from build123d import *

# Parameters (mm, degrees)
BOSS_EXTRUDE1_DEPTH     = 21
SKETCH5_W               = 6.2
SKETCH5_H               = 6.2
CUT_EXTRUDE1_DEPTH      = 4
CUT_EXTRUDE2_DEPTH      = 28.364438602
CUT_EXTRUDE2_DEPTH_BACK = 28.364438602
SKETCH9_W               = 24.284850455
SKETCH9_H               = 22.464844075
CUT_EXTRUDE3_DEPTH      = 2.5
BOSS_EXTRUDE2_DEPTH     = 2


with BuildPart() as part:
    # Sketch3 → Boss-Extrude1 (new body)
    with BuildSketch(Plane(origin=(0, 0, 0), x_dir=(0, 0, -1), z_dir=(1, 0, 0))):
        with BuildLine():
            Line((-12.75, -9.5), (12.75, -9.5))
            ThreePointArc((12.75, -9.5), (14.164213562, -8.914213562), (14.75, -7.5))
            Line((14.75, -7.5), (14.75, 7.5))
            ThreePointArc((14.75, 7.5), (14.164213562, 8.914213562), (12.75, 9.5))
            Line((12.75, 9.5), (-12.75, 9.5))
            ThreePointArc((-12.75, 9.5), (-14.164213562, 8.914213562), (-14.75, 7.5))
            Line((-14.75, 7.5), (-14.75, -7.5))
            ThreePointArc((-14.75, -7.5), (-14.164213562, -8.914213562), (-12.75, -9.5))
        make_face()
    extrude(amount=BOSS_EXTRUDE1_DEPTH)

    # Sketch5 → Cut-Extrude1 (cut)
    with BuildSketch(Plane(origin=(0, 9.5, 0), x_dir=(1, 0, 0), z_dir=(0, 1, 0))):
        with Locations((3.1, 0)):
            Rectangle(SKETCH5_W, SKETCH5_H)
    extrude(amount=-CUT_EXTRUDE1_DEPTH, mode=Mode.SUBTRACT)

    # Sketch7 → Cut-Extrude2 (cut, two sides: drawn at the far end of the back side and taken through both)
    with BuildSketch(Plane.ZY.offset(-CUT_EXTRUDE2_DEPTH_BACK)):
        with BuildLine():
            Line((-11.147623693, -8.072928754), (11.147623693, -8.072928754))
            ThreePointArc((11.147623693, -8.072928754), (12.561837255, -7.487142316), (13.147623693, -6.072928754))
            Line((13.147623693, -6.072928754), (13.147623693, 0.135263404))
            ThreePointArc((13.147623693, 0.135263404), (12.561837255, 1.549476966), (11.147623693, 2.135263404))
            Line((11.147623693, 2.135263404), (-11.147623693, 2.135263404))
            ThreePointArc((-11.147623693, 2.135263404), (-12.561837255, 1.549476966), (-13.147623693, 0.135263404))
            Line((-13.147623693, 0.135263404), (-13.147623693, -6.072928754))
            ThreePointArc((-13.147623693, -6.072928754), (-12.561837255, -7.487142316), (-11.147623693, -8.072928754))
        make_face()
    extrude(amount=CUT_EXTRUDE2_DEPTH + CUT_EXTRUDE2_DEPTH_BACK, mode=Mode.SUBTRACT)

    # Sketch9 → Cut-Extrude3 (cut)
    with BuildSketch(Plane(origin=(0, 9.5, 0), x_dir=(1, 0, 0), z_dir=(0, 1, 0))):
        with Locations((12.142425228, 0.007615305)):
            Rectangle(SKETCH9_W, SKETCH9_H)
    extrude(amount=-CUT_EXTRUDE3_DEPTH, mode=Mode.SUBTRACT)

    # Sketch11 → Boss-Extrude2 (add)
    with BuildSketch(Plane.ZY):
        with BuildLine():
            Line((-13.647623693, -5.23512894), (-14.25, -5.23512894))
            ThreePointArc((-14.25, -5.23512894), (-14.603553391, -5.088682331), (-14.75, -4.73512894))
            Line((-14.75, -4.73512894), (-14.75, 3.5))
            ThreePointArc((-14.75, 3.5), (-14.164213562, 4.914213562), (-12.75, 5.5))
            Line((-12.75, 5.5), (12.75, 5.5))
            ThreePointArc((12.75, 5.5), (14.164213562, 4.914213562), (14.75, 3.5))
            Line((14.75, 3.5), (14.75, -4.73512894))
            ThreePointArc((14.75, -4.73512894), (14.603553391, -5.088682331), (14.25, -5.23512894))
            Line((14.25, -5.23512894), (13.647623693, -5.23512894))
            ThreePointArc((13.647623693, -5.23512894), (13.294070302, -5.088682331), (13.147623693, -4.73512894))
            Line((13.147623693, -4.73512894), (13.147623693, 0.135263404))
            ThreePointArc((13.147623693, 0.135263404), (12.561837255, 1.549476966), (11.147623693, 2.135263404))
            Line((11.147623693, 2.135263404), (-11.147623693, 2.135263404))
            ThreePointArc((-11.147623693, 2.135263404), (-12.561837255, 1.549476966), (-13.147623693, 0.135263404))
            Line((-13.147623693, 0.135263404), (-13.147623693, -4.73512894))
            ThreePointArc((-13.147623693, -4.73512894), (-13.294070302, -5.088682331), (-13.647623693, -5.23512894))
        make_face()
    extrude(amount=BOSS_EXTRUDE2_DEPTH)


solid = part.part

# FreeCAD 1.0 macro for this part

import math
import FreeCAD as App
import Part
import Sketcher
from FreeCAD import Vector

doc = App.newDocument("Part")
body = doc.addObject("PartDesign::Body", "Body")

# Sketch on YZ plane
sketch1 = body.newObject("Sketcher::SketchObject", "Sketch")
sketch1.AttachmentSupport = (doc.getObject("YZ_Plane"), [""])
sketch1.MapMode = "FlatFace"
sketch1.addGeometry([
    Part.LineSegment(Vector(-9.5, 12.8, 0), Vector(-9.5, -12.8, 0)),  # 0
    Part.ArcOfCircle(Part.Circle(Vector(-7.5, -12.7, 0), Vector(0, 0, 1), 2), math.radians(-180), math.radians(-90)),  # 1
    Part.LineSegment(Vector(-7.5, -14.8, 0), Vector(7.5, -14.8, 0)),  # 2
    Part.ArcOfCircle(Part.Circle(Vector(7.5, -12.7, 0), Vector(0, 0, 1), 2), math.radians(-90), math.radians(0)),  # 3
    Part.LineSegment(Vector(9.5, -12.8, 0), Vector(9.5, 12.8, 0)),  # 4
    Part.ArcOfCircle(Part.Circle(Vector(7.5, 12.7, 0), Vector(0, 0, 1), 2), math.radians(0), math.radians(90)),  # 5
    Part.LineSegment(Vector(7.5, 14.8, 0), Vector(-7.5, 14.8, 0)),  # 6
    Part.ArcOfCircle(Part.Circle(Vector(-7.5, 12.7, 0), Vector(0, 0, 1), 2), math.radians(90), math.radians(180)),  # 7
], False)
sketch1.addConstraint([
    Sketcher.Constraint("Tangent", 0, 2, 1, 1),
    Sketcher.Constraint("Tangent", 1, 2, 2, 1),
    Sketcher.Constraint("Tangent", 2, 2, 3, 1),
    Sketcher.Constraint("Tangent", 3, 2, 4, 1),
    Sketcher.Constraint("Tangent", 4, 2, 5, 1),
    Sketcher.Constraint("Tangent", 5, 2, 6, 1),
    Sketcher.Constraint("Tangent", 6, 2, 7, 1),
    Sketcher.Constraint("Tangent", 7, 2, 0, 1),
    Sketcher.Constraint("Vertical", 0),
    Sketcher.Constraint("Horizontal", 2),
    Sketcher.Constraint("Vertical", 4),
    Sketcher.Constraint("Horizontal", 6),
    Sketcher.Constraint("Equal", 1, 3),
    Sketcher.Constraint("Equal", 3, 5),
    Sketcher.Constraint("Equal", 5, 7),
    Sketcher.Constraint("Symmetric", 1, 3, 5, 3, -1, 1),
    Sketcher.Constraint("Radius", 1, 2.0),
    Sketcher.Constraint("DistanceX", 2, 1, 2, 2, 15.0),
    Sketcher.Constraint("DistanceY", 0, 2, 0, 1, 25.5),
])
pad1 = body.newObject("PartDesign::Pad", "Pad")
pad1.Profile = sketch1
pad1.Length = 21

# Sketch on XZ plane
sketch2 = body.newObject("Sketcher::SketchObject", "Sketch001")
sketch2.AttachmentSupport = (doc.getObject("XZ_Plane"), [""])
sketch2.MapMode = "FlatFace"
sketch2.AttachmentOffset = App.Placement(Vector(0, 0, -9.5), App.Rotation())
sketch2.addGeometry([
    Part.LineSegment(Vector(0, -3, 0), Vector(0, 3, 0)),
    Part.LineSegment(Vector(0, 3, 0), Vector(6, 3, 0)),
    Part.LineSegment(Vector(6, 3, 0), Vector(6, -3, 0)),
    Part.LineSegment(Vector(6, -3, 0), Vector(0, -3, 0)),
], False)
sketch2.addConstraint([
    Sketcher.Constraint("Coincident", 0, 2, 1, 1),
    Sketcher.Constraint("Coincident", 1, 2, 2, 1),
    Sketcher.Constraint("Coincident", 2, 2, 3, 1),
    Sketcher.Constraint("Coincident", 3, 2, 0, 1),
    Sketcher.Constraint("Vertical", 0),
    Sketcher.Constraint("Horizontal", 1),
    Sketcher.Constraint("Vertical", 2),
    Sketcher.Constraint("Horizontal", 3),
    Sketcher.Constraint("Symmetric", 0, 2, 3, 2, -1, 1),
    Sketcher.Constraint("Equal", 3, 0),
    Sketcher.Constraint("DistanceX", 1, 1, 1, 2, 6.2),
])
pocket1 = body.newObject("PartDesign::Pocket", "Pocket")
pocket1.Profile = sketch2
pocket1.Length = 4
pocket1.Reversed = True

# Sketch on YZ plane
sketch3 = body.newObject("Sketcher::SketchObject", "Sketch002")
sketch3.AttachmentSupport = (doc.getObject("YZ_Plane"), [""])
sketch3.MapMode = "FlatFace"
sketch3.addGeometry([
    Part.LineSegment(Vector(-8.1, -11.1, 0), Vector(-8.1, 11.1, 0)),  # 0
    Part.ArcOfCircle(Part.Circle(Vector(-6.1, 11.1, 0), Vector(0, 0, 1), 2), math.radians(90), math.radians(180)),  # 1
    Part.LineSegment(Vector(-6.1, 13.1, 0), Vector(0.1, 13.1, 0)),  # 2
    Part.ArcOfCircle(Part.Circle(Vector(0.1, 11.1, 0), Vector(0, 0, 1), 2), math.radians(0), math.radians(90)),  # 3
    Part.LineSegment(Vector(2.1, 11.1, 0), Vector(2.1, -11.1, 0)),  # 4
    Part.ArcOfCircle(Part.Circle(Vector(0.1, -11.1, 0), Vector(0, 0, 1), 2), math.radians(-90), math.radians(0)),  # 5
    Part.LineSegment(Vector(0.1, -13.1, 0), Vector(-6.1, -13.1, 0)),  # 6
    Part.ArcOfCircle(Part.Circle(Vector(-6.1, -11.1, 0), Vector(0, 0, 1), 2), math.radians(-180), math.radians(-90)),  # 7
], False)
sketch3.addConstraint([
    Sketcher.Constraint("Tangent", 0, 2, 1, 2),
    Sketcher.Constraint("Tangent", 1, 1, 2, 1),
    Sketcher.Constraint("Tangent", 2, 2, 3, 2),
    Sketcher.Constraint("Tangent", 3, 1, 4, 1),
    Sketcher.Constraint("Tangent", 4, 2, 5, 2),
    Sketcher.Constraint("Tangent", 5, 1, 6, 1),
    Sketcher.Constraint("Tangent", 6, 2, 7, 2),
    Sketcher.Constraint("Tangent", 7, 1, 0, 1),
    Sketcher.Constraint("Vertical", 0),
    Sketcher.Constraint("Horizontal", 2),
    Sketcher.Constraint("Vertical", 4),
    Sketcher.Constraint("Horizontal", 6),
    Sketcher.Constraint("Equal", 1, 3),
    Sketcher.Constraint("Equal", 3, 5),
    Sketcher.Constraint("Equal", 5, 7),
    Sketcher.Constraint("Radius", 1, 2.0),
    Sketcher.Constraint("DistanceX", 2, 1, 2, 2, 6.208192),
    Sketcher.Constraint("DistanceY", 0, 1, 0, 2, 22.295247),
    Sketcher.Constraint("DistanceX", 1, 3, -1, 1, 6.072929),
    Sketcher.Constraint("DistanceY", -1, 1, 1, 3, 11.147624),
])
pocket2 = body.newObject("PartDesign::Pocket", "Pocket001")
pocket2.Profile = sketch3
pocket2.Type = "ThroughAll"
pocket2.Midplane = True

# Sketch on XZ plane
sketch4 = body.newObject("Sketcher::SketchObject", "Sketch003")
sketch4.AttachmentSupport = (doc.getObject("XZ_Plane"), [""])
sketch4.MapMode = "FlatFace"
sketch4.AttachmentOffset = App.Placement(Vector(0, 0, -9.5), App.Rotation())
sketch4.addGeometry([
    Part.LineSegment(Vector(0, -11, 0), Vector(0, 11, 0)),
    Part.LineSegment(Vector(0, 11, 0), Vector(24, 11, 0)),
    Part.LineSegment(Vector(24, 11, 0), Vector(24, -11, 0)),
    Part.LineSegment(Vector(24, -11, 0), Vector(0, -11, 0)),
], False)
sketch4.addConstraint([
    Sketcher.Constraint("Coincident", 0, 2, 1, 1),
    Sketcher.Constraint("Coincident", 1, 2, 2, 1),
    Sketcher.Constraint("Coincident", 2, 2, 3, 1),
    Sketcher.Constraint("Coincident", 3, 2, 0, 1),
    Sketcher.Constraint("Vertical", 0),
    Sketcher.Constraint("Horizontal", 1),
    Sketcher.Constraint("Vertical", 2),
    Sketcher.Constraint("Horizontal", 3),
    Sketcher.Constraint("PointOnObject", 0, 2, -2),
    Sketcher.Constraint("DistanceX", 1, 1, 1, 2, 24.28485),
    Sketcher.Constraint("DistanceY", 0, 1, 0, 2, 22.464844),
    Sketcher.Constraint("DistanceY", -1, 1, 0, 2, 11.224807),
])
pocket3 = body.newObject("PartDesign::Pocket", "Pocket002")
pocket3.Profile = sketch4
pocket3.Length = 2.5
pocket3.Reversed = True

# Sketch on YZ plane
sketch5 = body.newObject("Sketcher::SketchObject", "Sketch004")
sketch5.AttachmentSupport = (doc.getObject("YZ_Plane"), [""])
sketch5.MapMode = "FlatFace"
sketch5.addGeometry([
    Part.LineSegment(Vector(-5.24, -14.25, 0), Vector(-5.24, -13.65, 0)),  # 0
    Part.ArcOfCircle(Part.Circle(Vector(-4.74, -13.65, 0), Vector(0, 0, 1), 0.5), math.radians(90), math.radians(180)),  # 1
    Part.LineSegment(Vector(-4.74, -13.15, 0), Vector(0.14, -13.15, 0)),  # 2
    Part.ArcOfCircle(Part.Circle(Vector(0.14, -11.15, 0), Vector(0, 0, 1), 2), math.radians(-90), math.radians(0)),  # 3
    Part.LineSegment(Vector(2.14, -11.15, 0), Vector(2.14, 11.15, 0)),  # 4
    Part.ArcOfCircle(Part.Circle(Vector(0.14, 11.15, 0), Vector(0, 0, 1), 2), math.radians(0), math.radians(90)),  # 5
    Part.LineSegment(Vector(0.14, 13.15, 0), Vector(-4.74, 13.15, 0)),  # 6
    Part.ArcOfCircle(Part.Circle(Vector(-4.74, 13.65, 0), Vector(0, 0, 1), 0.5), math.radians(180), math.radians(270)),  # 7
    Part.LineSegment(Vector(-5.24, 13.65, 0), Vector(-5.24, 14.25, 0)),  # 8
    Part.ArcOfCircle(Part.Circle(Vector(-4.74, 14.25, 0), Vector(0, 0, 1), 0.5), math.radians(90), math.radians(180)),  # 9
    Part.LineSegment(Vector(-4.74, 14.75, 0), Vector(3.5, 14.75, 0)),  # 10
    Part.ArcOfCircle(Part.Circle(Vector(3.5, 12.75, 0), Vector(0, 0, 1), 2), math.radians(0), math.radians(90)),  # 11
    Part.LineSegment(Vector(5.5, 12.75, 0), Vector(5.5, -12.75, 0)),  # 12
    Part.ArcOfCircle(Part.Circle(Vector(3.5, -12.75, 0), Vector(0, 0, 1), 2), math.radians(-90), math.radians(0)),  # 13
    Part.LineSegment(Vector(3.5, -14.75, 0), Vector(-4.74, -14.75, 0)),  # 14
    Part.ArcOfCircle(Part.Circle(Vector(-4.74, -14.25, 0), Vector(0, 0, 1), 0.5), math.radians(180), math.radians(270)),  # 15
], False)
sketch5.addConstraint([
    Sketcher.Constraint("Tangent", 0, 2, 1, 2),
    Sketcher.Constraint("Tangent", 1, 1, 2, 1),
    Sketcher.Constraint("Tangent", 2, 2, 3, 1),
    Sketcher.Constraint("Tangent", 3, 2, 4, 1),
    Sketcher.Constraint("Tangent", 4, 2, 5, 1),
    Sketcher.Constraint("Tangent", 5, 2, 6, 1),
    Sketcher.Constraint("Tangent", 6, 2, 7, 2),
    Sketcher.Constraint("Tangent", 7, 1, 8, 1),
    Sketcher.Constraint("Tangent", 8, 2, 9, 2),
    Sketcher.Constraint("Tangent", 9, 1, 10, 1),
    Sketcher.Constraint("Tangent", 10, 2, 11, 2),
    Sketcher.Constraint("Tangent", 11, 1, 12, 1),
    Sketcher.Constraint("Tangent", 12, 2, 13, 2),
    Sketcher.Constraint("Tangent", 13, 1, 14, 1),
    Sketcher.Constraint("Tangent", 14, 2, 15, 2),
    Sketcher.Constraint("Tangent", 15, 1, 0, 1),
    Sketcher.Constraint("Vertical", 0),
    Sketcher.Constraint("Horizontal", 2),
    Sketcher.Constraint("Vertical", 4),
    Sketcher.Constraint("Horizontal", 6),
    Sketcher.Constraint("Vertical", 8),
    Sketcher.Constraint("Horizontal", 10),
    Sketcher.Constraint("Vertical", 12),
    Sketcher.Constraint("Horizontal", 14),
    Sketcher.Constraint("Equal", 3, 5),
    Sketcher.Constraint("Equal", 1, 7),
    Sketcher.Constraint("Equal", 7, 9),
    Sketcher.Constraint("Equal", 5, 11),
    Sketcher.Constraint("Equal", 11, 13),
    Sketcher.Constraint("Equal", 9, 15),
    Sketcher.Constraint("Symmetric", 1, 3, 7, 3, -1),
    Sketcher.Constraint("Equal", 0, 8),
    Sketcher.Constraint("Radius", 3, 2.0),
    Sketcher.Constraint("Radius", 1, 0.5),
    Sketcher.Constraint("DistanceY", 12, 2, 12, 1, 25.5),
    Sketcher.Constraint("DistanceX", -1, 1, 11, 3, 3.5),
    Sketcher.Constraint("DistanceX", 10, 1, 10, 2, 8.235129),
    Sketcher.Constraint("DistanceX", 2, 1, 2, 2, 4.870392),
    Sketcher.Constraint("DistanceY", 0, 1, 0, 2, 0.602376),
])
pad2 = body.newObject("PartDesign::Pad", "Pad001")
pad2.Profile = sketch5
pad2.Length = 2
pad2.Reversed = True

doc.recompute()
